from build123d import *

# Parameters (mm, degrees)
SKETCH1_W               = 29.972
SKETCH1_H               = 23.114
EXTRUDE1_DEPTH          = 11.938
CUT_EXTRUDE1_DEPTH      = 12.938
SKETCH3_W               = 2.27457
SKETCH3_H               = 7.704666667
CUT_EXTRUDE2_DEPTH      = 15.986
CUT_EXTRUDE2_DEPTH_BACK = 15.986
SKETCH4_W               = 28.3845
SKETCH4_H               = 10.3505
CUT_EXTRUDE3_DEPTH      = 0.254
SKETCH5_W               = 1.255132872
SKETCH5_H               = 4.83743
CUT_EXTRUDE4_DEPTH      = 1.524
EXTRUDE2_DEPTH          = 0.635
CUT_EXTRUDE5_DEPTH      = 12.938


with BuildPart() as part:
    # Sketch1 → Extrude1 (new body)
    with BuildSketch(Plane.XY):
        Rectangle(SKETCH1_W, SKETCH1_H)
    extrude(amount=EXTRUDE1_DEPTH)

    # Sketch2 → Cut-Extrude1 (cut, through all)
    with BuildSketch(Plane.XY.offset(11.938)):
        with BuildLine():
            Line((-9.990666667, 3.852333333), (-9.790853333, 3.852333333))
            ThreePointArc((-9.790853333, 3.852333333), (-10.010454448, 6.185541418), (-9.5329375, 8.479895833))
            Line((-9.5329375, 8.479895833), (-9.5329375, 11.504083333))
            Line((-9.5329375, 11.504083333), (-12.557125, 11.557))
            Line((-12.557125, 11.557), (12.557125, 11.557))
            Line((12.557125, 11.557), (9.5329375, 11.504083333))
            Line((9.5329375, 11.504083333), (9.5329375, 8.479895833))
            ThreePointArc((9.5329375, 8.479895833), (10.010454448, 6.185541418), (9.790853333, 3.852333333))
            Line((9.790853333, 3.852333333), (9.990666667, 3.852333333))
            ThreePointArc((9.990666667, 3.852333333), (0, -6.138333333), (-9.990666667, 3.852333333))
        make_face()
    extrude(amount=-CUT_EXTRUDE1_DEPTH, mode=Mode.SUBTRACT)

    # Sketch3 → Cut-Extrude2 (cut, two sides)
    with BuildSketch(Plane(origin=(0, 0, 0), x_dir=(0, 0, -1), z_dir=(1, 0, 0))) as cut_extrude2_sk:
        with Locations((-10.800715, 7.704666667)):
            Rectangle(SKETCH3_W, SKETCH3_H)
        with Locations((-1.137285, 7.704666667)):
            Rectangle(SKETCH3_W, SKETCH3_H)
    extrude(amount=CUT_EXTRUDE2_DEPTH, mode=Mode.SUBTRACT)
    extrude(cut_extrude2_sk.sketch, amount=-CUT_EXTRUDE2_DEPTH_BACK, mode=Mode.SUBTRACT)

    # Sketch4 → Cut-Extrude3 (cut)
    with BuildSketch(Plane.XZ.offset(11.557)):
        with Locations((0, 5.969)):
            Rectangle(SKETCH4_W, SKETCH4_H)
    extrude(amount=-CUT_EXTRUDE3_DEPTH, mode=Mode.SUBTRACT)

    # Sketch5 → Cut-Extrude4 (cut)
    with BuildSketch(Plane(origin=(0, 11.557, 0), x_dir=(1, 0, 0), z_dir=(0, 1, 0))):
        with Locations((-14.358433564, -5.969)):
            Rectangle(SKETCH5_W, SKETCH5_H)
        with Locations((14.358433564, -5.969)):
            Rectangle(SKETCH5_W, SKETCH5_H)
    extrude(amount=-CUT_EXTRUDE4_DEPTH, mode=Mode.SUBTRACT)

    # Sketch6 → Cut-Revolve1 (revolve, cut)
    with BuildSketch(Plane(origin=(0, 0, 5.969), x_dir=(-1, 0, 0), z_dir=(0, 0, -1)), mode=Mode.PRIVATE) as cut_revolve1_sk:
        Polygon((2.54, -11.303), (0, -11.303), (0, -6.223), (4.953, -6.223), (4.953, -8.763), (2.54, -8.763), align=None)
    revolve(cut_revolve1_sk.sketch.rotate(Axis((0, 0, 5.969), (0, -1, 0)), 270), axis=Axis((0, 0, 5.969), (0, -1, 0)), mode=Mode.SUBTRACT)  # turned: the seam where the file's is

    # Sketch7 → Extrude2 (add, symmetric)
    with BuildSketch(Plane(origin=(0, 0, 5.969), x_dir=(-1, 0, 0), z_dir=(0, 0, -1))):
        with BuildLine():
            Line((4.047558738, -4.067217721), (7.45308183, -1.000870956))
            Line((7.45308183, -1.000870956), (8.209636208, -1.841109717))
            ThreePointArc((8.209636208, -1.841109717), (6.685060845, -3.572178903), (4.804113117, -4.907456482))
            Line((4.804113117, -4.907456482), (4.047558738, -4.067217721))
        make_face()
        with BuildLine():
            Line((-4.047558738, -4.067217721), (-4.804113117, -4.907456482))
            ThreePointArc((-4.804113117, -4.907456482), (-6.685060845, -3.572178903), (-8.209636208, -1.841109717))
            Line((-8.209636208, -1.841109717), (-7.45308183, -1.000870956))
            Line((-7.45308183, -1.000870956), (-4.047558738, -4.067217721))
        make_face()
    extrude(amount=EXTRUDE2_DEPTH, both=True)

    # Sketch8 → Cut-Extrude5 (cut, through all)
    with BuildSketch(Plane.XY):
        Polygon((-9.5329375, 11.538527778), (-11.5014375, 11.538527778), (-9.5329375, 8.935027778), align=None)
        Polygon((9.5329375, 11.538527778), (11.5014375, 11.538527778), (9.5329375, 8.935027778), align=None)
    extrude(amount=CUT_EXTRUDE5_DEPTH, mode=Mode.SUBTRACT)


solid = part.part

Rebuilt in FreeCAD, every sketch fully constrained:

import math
import FreeCAD as App
import Part
import Sketcher
from FreeCAD import Vector
Q = App.Units.Quantity

doc = App.newDocument("Part")
body = doc.addObject("PartDesign::Body", "Body")

# Sketch on XY plane
sketch1 = body.newObject("Sketcher::SketchObject", "Sketch")
sketch1.AttachmentSupport = (doc.getObject("XY_Plane"), [""])
sketch1.MapMode = "FlatFace"
sketch1.addGeometry([
    Part.LineSegment(Vector(-15, 12, 0), Vector(-15, -12, 0)),
    Part.LineSegment(Vector(-15, -12, 0), Vector(15, -12, 0)),
    Part.LineSegment(Vector(15, -12, 0), Vector(15, 12, 0)),
    Part.LineSegment(Vector(15, 12, 0), Vector(-15, 12, 0)),
], False)
sketch1.addConstraint([
    Sketcher.Constraint("Coincident", 0, 2, 1, 1),
    Sketcher.Constraint("Coincident", 1, 2, 2, 1),
    Sketcher.Constraint("Coincident", 2, 2, 3, 1),
    Sketcher.Constraint("Coincident", 3, 2, 0, 1),
    Sketcher.Constraint("Vertical", 0),
    Sketcher.Constraint("Horizontal", 1),
    Sketcher.Constraint("Vertical", 2),
    Sketcher.Constraint("Horizontal", 3),
    Sketcher.Constraint("Symmetric", 0, 2, 2, 2, -1, 1),
    Sketcher.Constraint("DistanceX", 1, 1, 1, 2, Q("1.18 in")),
    Sketcher.Constraint("DistanceY", 0, 2, 0, 1, Q("0.91 in")),
])
pad1 = body.newObject("PartDesign::Pad", "Pad")
pad1.Profile = sketch1
pad1.Length = Q("0.47 in")

# Sketch on XY plane
sketch2 = body.newObject("Sketcher::SketchObject", "Sketch001")
sketch2.AttachmentSupport = (doc.getObject("XY_Plane"), [""])
sketch2.MapMode = "FlatFace"
sketch2.AttachmentOffset = App.Placement(Vector(0, 0, 0.47 * 25.4), App.Rotation())
sketch2.addGeometry([
    Part.LineSegment(Vector(-9.79, 3.85, 0), Vector(-9.99, 3.85, 0)),  # 0
    Part.ArcOfCircle(Part.Circle(Vector(0, 3.85, 0), Vector(0, 0, 1), 9.99), math.radians(-180), math.radians(0)),  # 1
    Part.LineSegment(Vector(9.99, 3.85, 0), Vector(9.79, 3.85, 0)),  # 2
    Part.ArcOfCircle(Part.Circle(Vector(2.16, 5.75, 0), Vector(0, 0, 1), 7.87), math.radians(-14), math.radians(20)),  # 3
    Part.LineSegment(Vector(9.53, 8.48, 0), Vector(9.53, 11.5, 0)),  # 4
    Part.LineSegment(Vector(9.53, 11.5, 0), Vector(12.56, 11.56, 0)),  # 5
    Part.LineSegment(Vector(12.56, 11.56, 0), Vector(-12.56, 11.56, 0)),  # 6
    Part.LineSegment(Vector(-12.56, 11.56, 0), Vector(-9.53, 11.5, 0)),  # 7
    Part.LineSegment(Vector(-9.53, 11.5, 0), Vector(-9.53, 8.48, 0)),  # 8
    Part.ArcOfCircle(Part.Circle(Vector(-2.16, 5.75, 0), Vector(0, 0, 1), 7.87), math.radians(160), math.radians(194)),  # 9
], False)
sketch2.addConstraint([
    Sketcher.Constraint("Coincident", 0, 2, 1, 1),
    Sketcher.Constraint("Coincident", 1, 2, 2, 1),
    Sketcher.Constraint("Coincident", 2, 2, 3, 1),
    Sketcher.Constraint("Coincident", 3, 2, 4, 1),
    Sketcher.Constraint("Coincident", 4, 2, 5, 1),
    Sketcher.Constraint("Coincident", 5, 2, 6, 1),
    Sketcher.Constraint("Coincident", 6, 2, 7, 1),
    Sketcher.Constraint("Coincident", 7, 2, 8, 1),
    Sketcher.Constraint("Coincident", 8, 2, 9, 1),
    Sketcher.Constraint("Coincident", 9, 2, 0, 1),
    Sketcher.Constraint("Horizontal", 0),
    Sketcher.Constraint("Horizontal", 2),
    Sketcher.Constraint("Vertical", 4),
    Sketcher.Constraint("Horizontal", 6),
    Sketcher.Constraint("Vertical", 8),
    Sketcher.Constraint("Equal", 3, 9),
    Sketcher.Constraint("Symmetric", 3, 3, 9, 3, -2),
    Sketcher.Constraint("Symmetric", 0, 2, 1, 2, -2),
    Sketcher.Constraint("Symmetric", 4, 2, 7, 2, -2),
    Sketcher.Constraint("Horizontal", 1, 3, 0, 2),
    Sketcher.Constraint("Equal", 5, 7),
    Sketcher.Constraint("DistanceY", -1, 1, 5, 2, Q("0.455 in")),
    Sketcher.Constraint("Radius", 1, Q("9.990667 mm")),
    Sketcher.Constraint("Radius", 3, Q("7.866062 mm")),
    Sketcher.Constraint("DistanceX", 0, 2, 2, 2, Q("0.7788 in")),
    Sketcher.Constraint("DistanceX", 6, 2, 6, 1, Q("25.11425 mm")),
    Sketcher.Constraint("Distance", 5, Q("3.02465 mm")),
    Sketcher.Constraint("DistanceY", 4, 1, 4, 2, Q("3.024188 mm")),
    Sketcher.Constraint("DistanceX", -1, 1, 3, 3, Q("2.156581 mm")),
    Sketcher.Constraint("DistanceY", -1, 1, 3, 3, Q("5.747808 mm")),
])
pocket1 = body.newObject("PartDesign::Pocket", "Pocket")
pocket1.Profile = sketch2
pocket1.Type = "ThroughAll"

# Sketch on YZ plane
sketch3 = body.newObject("Sketcher::SketchObject", "Sketch002")
sketch3.AttachmentSupport = (doc.getObject("YZ_Plane"), [""])
sketch3.MapMode = "FlatFace"
sketch3.addGeometry([
    Part.LineSegment(Vector(11.6, 11.9, 0), Vector(3.9, 11.9, 0)),  # 0
    Part.LineSegment(Vector(3.9, 11.9, 0), Vector(3.9, 9.7, 0)),  # 1
    Part.LineSegment(Vector(3.9, 9.7, 0), Vector(11.6, 9.7, 0)),  # 2
    Part.LineSegment(Vector(11.6, 9.7, 0), Vector(11.6, 11.9, 0)),  # 3
    Part.LineSegment(Vector(11.6, 2.3, 0), Vector(3.9, 2.3, 0)),  # 4
    Part.LineSegment(Vector(3.9, 2.3, 0), Vector(3.9, 0, 0)),  # 5
    Part.LineSegment(Vector(3.9, 0, 0), Vector(11.6, 0, 0)),  # 6
    Part.LineSegment(Vector(11.6, 0, 0), Vector(11.6, 2.3, 0)),  # 7
], False)
sketch3.addConstraint([
    Sketcher.Constraint("Coincident", 0, 2, 1, 1),
    Sketcher.Constraint("Coincident", 1, 2, 2, 1),
    Sketcher.Constraint("Coincident", 2, 2, 3, 1),
    Sketcher.Constraint("Coincident", 3, 2, 0, 1),
    Sketcher.Constraint("Coincident", 4, 2, 5, 1),
    Sketcher.Constraint("Coincident", 5, 2, 6, 1),
    Sketcher.Constraint("Coincident", 6, 2, 7, 1),
    Sketcher.Constraint("Coincident", 7, 2, 4, 1),
    Sketcher.Constraint("Horizontal", 0),
    Sketcher.Constraint("Vertical", 1),
    Sketcher.Constraint("Horizontal", 2),
    Sketcher.Constraint("Vertical", 3),
    Sketcher.Constraint("Horizontal", 4),
    Sketcher.Constraint("Vertical", 5),
    Sketcher.Constraint("Horizontal", 6),
    Sketcher.Constraint("Vertical", 7),
    Sketcher.Constraint("PointOnObject", 5, 2, -1),
    Sketcher.Constraint("Vertical", 1, 2, 4, 2),
    Sketcher.Constraint("Vertical", 3, 2, 6, 2),
    Sketcher.Constraint("Equal", 3, 5),
    Sketcher.Constraint("DistanceY", -1, 1, 0, 2, Q("0.47 in")),
    Sketcher.Constraint("DistanceX", -1, 1, 2, 2, Q("0.455 in")),
    Sketcher.Constraint("DistanceY", 4, 2, 1, 2, Q("0.2909 in")),
    Sketcher.Constraint("DistanceX", 0, 2, 0, 1, Q("7.704667 mm")),
])
pocket2 = body.newObject("PartDesign::Pocket", "Pocket001")
pocket2.Profile = sketch3
pocket2.Type = "ThroughAll"
pocket2.Midplane = True

# Sketch on XZ plane
sketch4 = body.newObject("Sketcher::SketchObject", "Sketch003")
sketch4.AttachmentSupport = (doc.getObject("XZ_Plane"), [""])
sketch4.MapMode = "FlatFace"
sketch4.AttachmentOffset = App.Placement(Vector(0, 0, 0.455 * 25.4), App.Rotation())
sketch4.addGeometry([
    Part.LineSegment(Vector(-14, 11, 0), Vector(-14, 1, 0)),
    Part.LineSegment(Vector(-14, 1, 0), Vector(14, 1, 0)),
    Part.LineSegment(Vector(14, 1, 0), Vector(14, 11, 0)),
    Part.LineSegment(Vector(14, 11, 0), Vector(-14, 11, 0)),
], False)
sketch4.addConstraint([
    Sketcher.Constraint("Coincident", 0, 2, 1, 1),
    Sketcher.Constraint("Coincident", 1, 2, 2, 1),
    Sketcher.Constraint("Coincident", 2, 2, 3, 1),
    Sketcher.Constraint("Coincident", 3, 2, 0, 1),
    Sketcher.Constraint("Vertical", 0),
    Sketcher.Constraint("Horizontal", 1),
    Sketcher.Constraint("Vertical", 2),
    Sketcher.Constraint("Horizontal", 3),
    Sketcher.Constraint("DistanceX", 1, 1, 1, 2, Q("1.1175 in")),
    Sketcher.Constraint("DistanceY", 0, 2, 0, 1, Q("0.4075 in")),
    Sketcher.Constraint("DistanceY", -1, 1, 0, 2, Q("0.03125 in")),
    Sketcher.Constraint("DistanceX", 0, 2, -1, 1, Q("14.19225 mm")),
])
pocket3 = body.newObject("PartDesign::Pocket", "Pocket002")
pocket3.Profile = sketch4
pocket3.Length = Q("0.01 in")

# Sketch on XZ plane
sketch5 = body.newObject("Sketcher::SketchObject", "Sketch004")
sketch5.AttachmentSupport = (doc.getObject("XZ_Plane"), [""])
sketch5.MapMode = "FlatFace"
sketch5.AttachmentOffset = App.Placement(Vector(0, 0, -0.455 * 25.4), App.Rotation())
sketch5.addGeometry([
    Part.LineSegment(Vector(-15, 3.6, 0), Vector(-15, 8.4, 0)),  # 0
    Part.LineSegment(Vector(-15, 8.4, 0), Vector(-13.7, 8.4, 0)),  # 1
    Part.LineSegment(Vector(-13.7, 8.4, 0), Vector(-13.7, 3.6, 0)),  # 2
    Part.LineSegment(Vector(-13.7, 3.6, 0), Vector(-15, 3.6, 0)),  # 3
    Part.LineSegment(Vector(13.7, 3.6, 0), Vector(13.7, 8.4, 0)),  # 4
    Part.LineSegment(Vector(13.7, 8.4, 0), Vector(15, 8.4, 0)),  # 5
    Part.LineSegment(Vector(15, 8.4, 0), Vector(15, 3.6, 0)),  # 6
    Part.LineSegment(Vector(15, 3.6, 0), Vector(13.7, 3.6, 0)),  # 7
], False)
sketch5.addConstraint([
    Sketcher.Constraint("Coincident", 0, 2, 1, 1),
    Sketcher.Constraint("Coincident", 1, 2, 2, 1),
    Sketcher.Constraint("Coincident", 2, 2, 3, 1),
    Sketcher.Constraint("Coincident", 3, 2, 0, 1),
    Sketcher.Constraint("Coincident", 4, 2, 5, 1),
    Sketcher.Constraint("Coincident", 5, 2, 6, 1),
    Sketcher.Constraint("Coincident", 6, 2, 7, 1),
    Sketcher.Constraint("Coincident", 7, 2, 4, 1),
    Sketcher.Constraint("Vertical", 0),
    Sketcher.Constraint("Horizontal", 1),
    Sketcher.Constraint("Vertical", 2),
    Sketcher.Constraint("Horizontal", 3),
    Sketcher.Constraint("Vertical", 4),
    Sketcher.Constraint("Horizontal", 5),
    Sketcher.Constraint("Vertical", 6),
    Sketcher.Constraint("Horizontal", 7),
    Sketcher.Constraint("Symmetric", 1, 2, 4, 2, -2),
    Sketcher.Constraint("Symmetric", 3, 2, 6, 2, -2),
    Sketcher.Constraint("DistanceX", 0, 2, -1, 1, Q("0.59 in")),
    Sketcher.Constraint("DistanceY", 0, 1, 0, 2, Q("4.83743 mm")),
    Sketcher.Constraint("DistanceX", 1, 1, 1, 2, Q("1.255133 mm")),
    Sketcher.Constraint("DistanceY", -1, 1, 0, 2, Q("8.387715 mm")),
])
pocket4 = body.newObject("PartDesign::Pocket", "Pocket003")
pocket4.Profile = sketch5
pocket4.Length = Q("0.06 in")
pocket4.Reversed = True

# Sketch on XY plane
sketch6 = body.newObject("Sketcher::SketchObject", "Sketch005")
sketch6.AttachmentSupport = (doc.getObject("XY_Plane"), [""])
sketch6.MapMode = "FlatFace"
sketch6.AttachmentOffset = App.Placement(Vector(0, 0, 0.235 * 25.4), App.Rotation())
sketch6.addGeometry([
    Part.LineSegment(Vector(0, -11.3, 0), Vector(-2.5, -11.3, 0)),  # 0
    Part.LineSegment(Vector(-2.5, -11.3, 0), Vector(-2.5, -8.8, 0)),  # 1
    Part.LineSegment(Vector(-2.5, -8.8, 0), Vector(-5, -8.8, 0)),  # 2
    Part.LineSegment(Vector(-5, -8.8, 0), Vector(-5, -6.2, 0)),  # 3
    Part.LineSegment(Vector(-5, -6.2, 0), Vector(0, -6.2, 0)),  # 4
    Part.LineSegment(Vector(0, -6.2, 0), Vector(0, -11.3, 0)),  # 5
], False)
sketch6.addConstraint([
    Sketcher.Constraint("Coincident", 0, 2, 1, 1),
    Sketcher.Constraint("Coincident", 1, 2, 2, 1),
    Sketcher.Constraint("Coincident", 2, 2, 3, 1),
    Sketcher.Constraint("Coincident", 3, 2, 4, 1),
    Sketcher.Constraint("Coincident", 4, 2, 5, 1),
    Sketcher.Constraint("Coincident", 5, 2, 0, 1),
    Sketcher.Constraint("Horizontal", 0),
    Sketcher.Constraint("Vertical", 1),
    Sketcher.Constraint("Horizontal", 2),
    Sketcher.Constraint("Vertical", 3),
    Sketcher.Constraint("Horizontal", 4),
    Sketcher.Constraint("Vertical", 5),
    Sketcher.Constraint("PointOnObject", 4, 2, -2),
    Sketcher.Constraint("Equal", 0, 1),
    Sketcher.Constraint("Equal", 1, 3),
    Sketcher.Constraint("DistanceX", 0, 2, 0, 1, Q("0.1 in")),
    Sketcher.Constraint("DistanceX", 2, 2, 2, 1, Q("0.095 in")),
    Sketcher.Constraint("DistanceY", 0, 2, -1, 1, Q("0.445 in")),
])
groove = body.newObject("PartDesign::Groove", "Groove")
groove.Profile = sketch6
groove.ReferenceAxis = (sketch6, ["V_Axis"])
groove.Angle = 360

# Sketch on XY plane
sketch7 = body.newObject("Sketcher::SketchObject", "Sketch006")
sketch7.AttachmentSupport = (doc.getObject("XY_Plane"), [""])
sketch7.MapMode = "FlatFace"
sketch7.AttachmentOffset = App.Placement(Vector(0, 0, 0.235 * 25.4), App.Rotation())
sketch7.addGeometry([
    Part.LineSegment(Vector(-7.5, -1, 0), Vector(-4, -4.1, 0)),  # 0
    Part.LineSegment(Vector(-4, -4.1, 0), Vector(-4.8, -4.9, 0)),  # 1
    Part.ArcOfCircle(Part.Circle(Vector(0, 3.9, 0), Vector(0, 0, 1), 10), math.radians(-145), math.radians(-119)),  # 2
    Part.LineSegment(Vector(-8.2, -1.8, 0), Vector(-7.5, -1, 0)),  # 3
    Part.LineSegment(Vector(4.8, -4.9, 0), Vector(4, -4.1, 0)),  # 4
    Part.LineSegment(Vector(4, -4.1, 0), Vector(7.5, -1, 0)),  # 5
    Part.LineSegment(Vector(7.5, -1, 0), Vector(8.2, -1.8, 0)),  # 6
    Part.ArcOfCircle(Part.Circle(Vector(0, 3.9, 0), Vector(0, 0, 1), 10), math.radians(-61), math.radians(-35)),  # 7
], False)
sketch7.addConstraint([
    Sketcher.Constraint("Coincident", 0, 2, 1, 1),
    Sketcher.Constraint("Coincident", 1, 2, 2, 2),
    Sketcher.Constraint("Coincident", 2, 1, 3, 1),
    Sketcher.Constraint("Coincident", 3, 2, 0, 1),
    Sketcher.Constraint("Coincident", 4, 2, 5, 1),
    Sketcher.Constraint("Coincident", 5, 2, 6, 1),
    Sketcher.Constraint("Coincident", 6, 2, 7, 2),
    Sketcher.Constraint("Coincident", 7, 1, 4, 1),
    Sketcher.Constraint("Coincident", 7, 3, 2, 3),
    Sketcher.Constraint("Equal", 2, 7),
    Sketcher.Constraint("Symmetric", 0, 2, 4, 2, -2),
    Sketcher.Constraint("Symmetric", 3, 2, 5, 2, -2),
    Sketcher.Constraint("Symmetric", 2, 1, 6, 2, -2),
    Sketcher.Constraint("Perpendicular", 0, 1),
    Sketcher.Constraint("Parallel", 1, 3),
    Sketcher.Constraint("Perpendicular", 4, 5),
    Sketcher.Constraint("Equal", 1, 3),
    Sketcher.Constraint("Angle", 0, Q("-42 deg")),
    Sketcher.Constraint("Radius", 2, Q("9.990667 mm")),
    Sketcher.Constraint("DistanceX", 0, 2, -1, 1, Q("4.047559 mm")),
    Sketcher.Constraint("DistanceY", 2, 1, -1, 1, Q("1.84111 mm")),
    Sketcher.Constraint("DistanceX", 3, 2, -1, 1, Q("7.453082 mm")),
])
pad2 = body.newObject("PartDesign::Pad", "Pad001")
pad2.Profile = sketch7
pad2.Length = Q("0.05 in")
pad2.Midplane = True

# Sketch on XY plane
sketch8 = body.newObject("Sketcher::SketchObject", "Sketch007")
sketch8.AttachmentSupport = (doc.getObject("XY_Plane"), [""])
sketch8.MapMode = "FlatFace"
sketch8.addGeometry([
    Part.LineSegment(Vector(-9.5, 11.5, 0), Vector(-11.5, 11.5, 0)),  # 0
    Part.LineSegment(Vector(-11.5, 11.5, 0), Vector(-9.5, 8.9, 0)),  # 1
    Part.LineSegment(Vector(-9.5, 8.9, 0), Vector(-9.5, 11.5, 0)),  # 2
    Part.LineSegment(Vector(11.5, 11.5, 0), Vector(9.5, 11.5, 0)),  # 3
    Part.LineSegment(Vector(9.5, 11.5, 0), Vector(9.5, 8.9, 0)),  # 4
    Part.LineSegment(Vector(9.5, 8.9, 0), Vector(11.5, 11.5, 0)),  # 5
], False)
sketch8.addConstraint([
    Sketcher.Constraint("Coincident", 0, 2, 1, 1),
    Sketcher.Constraint("Coincident", 1, 2, 2, 1),
    Sketcher.Constraint("Coincident", 2, 2, 0, 1),
    Sketcher.Constraint("Coincident", 3, 2, 4, 1),
    Sketcher.Constraint("Coincident", 4, 2, 5, 1),
    Sketcher.Constraint("Coincident", 5, 2, 3, 1),
    Sketcher.Constraint("Horizontal", 0),
    Sketcher.Constraint("Vertical", 2),
    Sketcher.Constraint("Horizontal", 3),
    Sketcher.Constraint("Vertical", 4),
    Sketcher.Constraint("Symmetric", 2, 2, 3, 2, -2),
    Sketcher.Constraint("Horizontal", 1, 2, 4, 2),
    Sketcher.Constraint("Equal", 0, 3),
    Sketcher.Constraint("DistanceX", 0, 2, 0, 1, Q("0.0775 in")),
    Sketcher.Constraint("DistanceY", 2, 1, 2, 2, Q("0.1025 in")),
    Sketcher.Constraint("DistanceX", 0, 2, 3, 2, Q("0.828125 in")),
    Sketcher.Constraint("DistanceY", -1, 1, 0, 2, Q("11.538528 mm")),
])
pocket5 = body.newObject("PartDesign::Pocket", "Pocket004")
pocket5.Profile = sketch8
pocket5.Type = "ThroughAll"
pocket5.Reversed = True

doc.recompute()
